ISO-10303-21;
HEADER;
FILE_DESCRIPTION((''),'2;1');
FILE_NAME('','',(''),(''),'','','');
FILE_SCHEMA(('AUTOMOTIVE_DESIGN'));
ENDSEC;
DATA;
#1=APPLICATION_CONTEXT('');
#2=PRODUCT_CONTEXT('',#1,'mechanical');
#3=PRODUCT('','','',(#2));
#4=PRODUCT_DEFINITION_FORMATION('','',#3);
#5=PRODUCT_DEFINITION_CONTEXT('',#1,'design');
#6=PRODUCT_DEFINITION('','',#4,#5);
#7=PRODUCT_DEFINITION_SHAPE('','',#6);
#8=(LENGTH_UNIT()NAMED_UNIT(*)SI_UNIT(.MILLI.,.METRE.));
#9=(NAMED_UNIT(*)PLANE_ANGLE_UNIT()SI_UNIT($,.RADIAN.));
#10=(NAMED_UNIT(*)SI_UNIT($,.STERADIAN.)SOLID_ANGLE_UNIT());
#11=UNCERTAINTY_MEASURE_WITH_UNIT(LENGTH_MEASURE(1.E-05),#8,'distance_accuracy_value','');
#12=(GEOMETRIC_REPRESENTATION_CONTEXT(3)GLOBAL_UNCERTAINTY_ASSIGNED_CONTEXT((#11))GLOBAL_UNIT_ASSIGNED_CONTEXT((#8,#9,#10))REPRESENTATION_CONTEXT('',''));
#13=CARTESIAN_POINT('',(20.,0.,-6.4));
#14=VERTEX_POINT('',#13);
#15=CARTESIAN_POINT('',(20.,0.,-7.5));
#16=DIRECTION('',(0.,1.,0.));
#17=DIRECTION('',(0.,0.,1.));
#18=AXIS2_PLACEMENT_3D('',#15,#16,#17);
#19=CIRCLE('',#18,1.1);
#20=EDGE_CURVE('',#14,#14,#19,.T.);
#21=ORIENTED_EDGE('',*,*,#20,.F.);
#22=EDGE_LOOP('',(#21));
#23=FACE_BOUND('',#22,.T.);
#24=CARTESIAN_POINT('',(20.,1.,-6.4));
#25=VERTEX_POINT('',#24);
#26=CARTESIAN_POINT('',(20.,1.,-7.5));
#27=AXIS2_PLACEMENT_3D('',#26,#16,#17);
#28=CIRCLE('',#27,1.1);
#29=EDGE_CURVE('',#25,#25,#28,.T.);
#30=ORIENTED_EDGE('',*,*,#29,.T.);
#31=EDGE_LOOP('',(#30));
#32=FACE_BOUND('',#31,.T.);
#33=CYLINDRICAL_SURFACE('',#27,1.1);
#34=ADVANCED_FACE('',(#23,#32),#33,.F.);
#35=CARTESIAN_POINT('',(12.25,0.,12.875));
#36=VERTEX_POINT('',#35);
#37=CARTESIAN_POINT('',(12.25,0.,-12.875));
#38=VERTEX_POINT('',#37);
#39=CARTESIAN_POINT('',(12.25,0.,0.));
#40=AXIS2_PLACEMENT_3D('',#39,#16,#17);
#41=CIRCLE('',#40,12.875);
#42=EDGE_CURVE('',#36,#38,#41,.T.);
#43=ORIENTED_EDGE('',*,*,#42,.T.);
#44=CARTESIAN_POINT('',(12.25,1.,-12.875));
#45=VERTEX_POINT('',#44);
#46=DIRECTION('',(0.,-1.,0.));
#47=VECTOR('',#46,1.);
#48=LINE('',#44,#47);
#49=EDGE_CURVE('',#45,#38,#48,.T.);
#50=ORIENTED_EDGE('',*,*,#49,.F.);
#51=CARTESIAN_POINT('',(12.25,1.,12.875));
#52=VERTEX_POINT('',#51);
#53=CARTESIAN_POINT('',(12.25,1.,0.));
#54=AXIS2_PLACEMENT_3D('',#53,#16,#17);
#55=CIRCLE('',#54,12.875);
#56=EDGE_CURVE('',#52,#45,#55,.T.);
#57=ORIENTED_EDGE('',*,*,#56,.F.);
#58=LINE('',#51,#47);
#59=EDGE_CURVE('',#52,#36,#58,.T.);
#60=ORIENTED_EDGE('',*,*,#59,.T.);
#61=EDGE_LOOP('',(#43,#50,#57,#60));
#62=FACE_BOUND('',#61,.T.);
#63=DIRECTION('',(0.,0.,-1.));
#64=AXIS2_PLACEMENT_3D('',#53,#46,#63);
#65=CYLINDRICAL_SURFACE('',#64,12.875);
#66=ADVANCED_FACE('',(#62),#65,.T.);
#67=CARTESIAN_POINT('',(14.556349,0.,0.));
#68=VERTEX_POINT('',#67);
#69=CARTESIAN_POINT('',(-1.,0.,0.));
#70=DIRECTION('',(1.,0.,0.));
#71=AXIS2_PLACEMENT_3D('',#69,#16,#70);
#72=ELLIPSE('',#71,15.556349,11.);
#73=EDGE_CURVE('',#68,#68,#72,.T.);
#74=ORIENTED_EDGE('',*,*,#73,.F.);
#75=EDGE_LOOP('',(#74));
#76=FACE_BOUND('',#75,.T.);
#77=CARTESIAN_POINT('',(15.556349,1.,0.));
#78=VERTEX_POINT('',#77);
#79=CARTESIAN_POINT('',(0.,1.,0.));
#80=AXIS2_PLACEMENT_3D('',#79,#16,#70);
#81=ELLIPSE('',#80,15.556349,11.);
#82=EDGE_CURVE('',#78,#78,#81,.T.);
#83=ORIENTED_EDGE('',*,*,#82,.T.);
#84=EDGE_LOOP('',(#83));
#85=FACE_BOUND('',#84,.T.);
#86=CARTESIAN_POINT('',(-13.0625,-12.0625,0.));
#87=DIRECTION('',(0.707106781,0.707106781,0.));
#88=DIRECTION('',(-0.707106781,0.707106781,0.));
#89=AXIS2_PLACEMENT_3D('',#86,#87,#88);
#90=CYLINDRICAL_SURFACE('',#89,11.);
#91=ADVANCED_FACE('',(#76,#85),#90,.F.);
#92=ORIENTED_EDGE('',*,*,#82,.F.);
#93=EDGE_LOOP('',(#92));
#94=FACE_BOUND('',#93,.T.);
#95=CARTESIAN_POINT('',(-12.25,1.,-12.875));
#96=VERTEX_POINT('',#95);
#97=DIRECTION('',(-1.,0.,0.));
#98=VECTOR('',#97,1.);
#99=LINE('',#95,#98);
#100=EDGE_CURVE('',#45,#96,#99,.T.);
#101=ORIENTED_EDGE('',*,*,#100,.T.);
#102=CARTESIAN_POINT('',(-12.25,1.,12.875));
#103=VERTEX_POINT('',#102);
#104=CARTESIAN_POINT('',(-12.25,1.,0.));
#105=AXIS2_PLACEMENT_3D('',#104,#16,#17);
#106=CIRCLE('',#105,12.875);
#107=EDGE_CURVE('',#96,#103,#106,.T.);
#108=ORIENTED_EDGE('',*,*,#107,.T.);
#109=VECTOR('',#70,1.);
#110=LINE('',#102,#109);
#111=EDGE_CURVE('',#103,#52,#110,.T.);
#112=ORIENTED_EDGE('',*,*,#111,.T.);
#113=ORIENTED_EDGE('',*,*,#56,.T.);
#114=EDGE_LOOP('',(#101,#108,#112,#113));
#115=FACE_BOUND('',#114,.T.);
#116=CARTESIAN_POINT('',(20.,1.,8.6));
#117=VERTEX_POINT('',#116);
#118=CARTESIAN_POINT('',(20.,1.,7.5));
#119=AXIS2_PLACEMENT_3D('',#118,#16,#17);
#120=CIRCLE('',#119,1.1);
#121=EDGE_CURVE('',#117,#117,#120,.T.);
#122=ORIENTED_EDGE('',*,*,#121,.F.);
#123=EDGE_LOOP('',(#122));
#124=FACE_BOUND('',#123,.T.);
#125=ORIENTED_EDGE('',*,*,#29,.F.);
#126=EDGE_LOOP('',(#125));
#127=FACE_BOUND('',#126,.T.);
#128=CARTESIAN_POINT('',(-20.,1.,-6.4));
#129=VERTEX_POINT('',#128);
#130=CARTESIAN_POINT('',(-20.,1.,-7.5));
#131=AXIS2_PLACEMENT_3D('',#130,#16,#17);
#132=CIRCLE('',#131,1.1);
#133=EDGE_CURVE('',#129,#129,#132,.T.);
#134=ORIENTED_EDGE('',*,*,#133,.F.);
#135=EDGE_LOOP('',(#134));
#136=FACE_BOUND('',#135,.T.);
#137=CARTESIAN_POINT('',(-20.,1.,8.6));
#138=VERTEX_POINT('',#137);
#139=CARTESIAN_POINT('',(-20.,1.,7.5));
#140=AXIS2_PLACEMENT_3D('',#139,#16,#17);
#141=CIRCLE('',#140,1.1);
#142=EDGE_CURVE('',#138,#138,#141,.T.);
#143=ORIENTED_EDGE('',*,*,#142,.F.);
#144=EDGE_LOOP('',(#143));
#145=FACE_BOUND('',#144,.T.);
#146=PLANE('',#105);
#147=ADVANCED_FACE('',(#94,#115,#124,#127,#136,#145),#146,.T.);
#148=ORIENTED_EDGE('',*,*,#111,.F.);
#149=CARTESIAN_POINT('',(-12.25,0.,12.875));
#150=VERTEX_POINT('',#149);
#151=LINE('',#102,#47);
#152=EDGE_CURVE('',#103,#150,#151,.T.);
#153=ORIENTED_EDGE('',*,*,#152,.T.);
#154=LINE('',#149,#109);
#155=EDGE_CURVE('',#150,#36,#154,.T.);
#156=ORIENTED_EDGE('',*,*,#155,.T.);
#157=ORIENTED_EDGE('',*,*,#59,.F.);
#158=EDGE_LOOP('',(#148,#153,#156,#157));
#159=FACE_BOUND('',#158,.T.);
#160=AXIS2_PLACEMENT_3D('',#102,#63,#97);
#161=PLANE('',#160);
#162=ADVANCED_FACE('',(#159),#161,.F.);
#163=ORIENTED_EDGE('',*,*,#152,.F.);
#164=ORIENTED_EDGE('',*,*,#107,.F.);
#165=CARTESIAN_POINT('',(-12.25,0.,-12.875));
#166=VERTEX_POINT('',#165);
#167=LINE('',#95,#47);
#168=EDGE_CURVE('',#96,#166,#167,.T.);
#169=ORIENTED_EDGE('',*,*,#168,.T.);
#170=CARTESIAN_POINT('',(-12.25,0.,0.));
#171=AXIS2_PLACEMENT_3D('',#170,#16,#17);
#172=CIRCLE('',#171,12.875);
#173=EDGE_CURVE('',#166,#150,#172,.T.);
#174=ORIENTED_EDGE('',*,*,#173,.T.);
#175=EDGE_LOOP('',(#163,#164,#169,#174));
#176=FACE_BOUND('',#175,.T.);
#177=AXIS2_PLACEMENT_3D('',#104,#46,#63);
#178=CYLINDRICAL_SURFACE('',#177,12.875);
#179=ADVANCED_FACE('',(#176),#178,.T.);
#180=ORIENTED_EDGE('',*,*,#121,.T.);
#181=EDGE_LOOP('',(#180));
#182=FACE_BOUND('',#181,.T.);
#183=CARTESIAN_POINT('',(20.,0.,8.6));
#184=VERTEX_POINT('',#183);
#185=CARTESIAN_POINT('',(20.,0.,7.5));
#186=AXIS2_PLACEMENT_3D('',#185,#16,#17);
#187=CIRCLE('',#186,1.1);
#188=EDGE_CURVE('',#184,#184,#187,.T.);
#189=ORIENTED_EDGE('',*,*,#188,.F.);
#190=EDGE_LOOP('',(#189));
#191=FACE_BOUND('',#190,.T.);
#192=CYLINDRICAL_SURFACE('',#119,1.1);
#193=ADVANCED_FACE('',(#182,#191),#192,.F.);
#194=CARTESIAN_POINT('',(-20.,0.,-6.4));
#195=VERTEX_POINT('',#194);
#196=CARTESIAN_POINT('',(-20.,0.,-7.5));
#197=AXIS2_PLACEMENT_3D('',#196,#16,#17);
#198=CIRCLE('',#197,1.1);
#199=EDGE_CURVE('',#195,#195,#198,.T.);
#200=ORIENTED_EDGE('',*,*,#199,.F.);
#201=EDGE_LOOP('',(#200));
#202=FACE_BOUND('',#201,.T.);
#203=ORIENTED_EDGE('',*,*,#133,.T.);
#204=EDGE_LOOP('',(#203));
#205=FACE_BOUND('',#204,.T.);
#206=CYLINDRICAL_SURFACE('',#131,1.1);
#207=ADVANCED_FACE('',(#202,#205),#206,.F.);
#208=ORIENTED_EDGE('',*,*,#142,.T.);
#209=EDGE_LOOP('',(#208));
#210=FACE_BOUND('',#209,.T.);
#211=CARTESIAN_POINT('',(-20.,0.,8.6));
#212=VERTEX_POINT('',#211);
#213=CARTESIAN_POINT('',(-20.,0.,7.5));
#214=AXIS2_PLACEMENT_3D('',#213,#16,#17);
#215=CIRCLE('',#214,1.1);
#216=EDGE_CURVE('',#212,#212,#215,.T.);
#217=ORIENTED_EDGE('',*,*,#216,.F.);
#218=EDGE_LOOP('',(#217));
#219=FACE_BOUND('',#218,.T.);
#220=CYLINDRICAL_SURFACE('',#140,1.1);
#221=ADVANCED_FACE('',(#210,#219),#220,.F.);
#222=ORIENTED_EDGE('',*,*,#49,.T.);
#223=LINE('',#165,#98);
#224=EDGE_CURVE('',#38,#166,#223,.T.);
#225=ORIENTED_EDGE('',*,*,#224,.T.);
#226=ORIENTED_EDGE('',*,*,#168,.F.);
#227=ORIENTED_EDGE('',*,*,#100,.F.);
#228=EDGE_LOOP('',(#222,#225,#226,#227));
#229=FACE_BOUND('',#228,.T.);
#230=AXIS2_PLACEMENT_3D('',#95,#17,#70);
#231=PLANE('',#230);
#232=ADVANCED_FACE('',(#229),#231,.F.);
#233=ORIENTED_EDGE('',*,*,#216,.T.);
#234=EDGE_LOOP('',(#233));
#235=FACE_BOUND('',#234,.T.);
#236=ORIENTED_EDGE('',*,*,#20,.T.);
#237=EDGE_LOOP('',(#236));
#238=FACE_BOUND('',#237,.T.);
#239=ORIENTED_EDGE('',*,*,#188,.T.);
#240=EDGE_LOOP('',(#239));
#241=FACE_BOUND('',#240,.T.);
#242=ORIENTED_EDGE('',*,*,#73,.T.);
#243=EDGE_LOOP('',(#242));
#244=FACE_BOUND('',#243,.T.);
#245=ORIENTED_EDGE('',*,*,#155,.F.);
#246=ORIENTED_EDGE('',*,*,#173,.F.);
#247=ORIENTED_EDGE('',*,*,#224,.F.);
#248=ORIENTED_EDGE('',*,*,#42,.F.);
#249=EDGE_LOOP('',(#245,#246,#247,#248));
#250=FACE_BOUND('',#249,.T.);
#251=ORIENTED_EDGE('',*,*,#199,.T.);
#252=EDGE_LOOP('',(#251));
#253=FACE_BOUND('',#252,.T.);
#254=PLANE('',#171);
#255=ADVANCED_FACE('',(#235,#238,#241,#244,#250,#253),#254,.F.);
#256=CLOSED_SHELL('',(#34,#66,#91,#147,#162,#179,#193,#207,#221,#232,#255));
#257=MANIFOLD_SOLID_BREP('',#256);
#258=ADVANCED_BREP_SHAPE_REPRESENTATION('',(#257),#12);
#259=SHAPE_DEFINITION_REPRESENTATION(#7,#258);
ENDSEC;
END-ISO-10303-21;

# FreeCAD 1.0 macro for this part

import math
import FreeCAD as App
import Part
import Sketcher

V = App.Vector

doc = App.newDocument("Part")
params = doc.addObject("Spreadsheet::Sheet", "Params")
for row, (alias, value) in enumerate([
    ("sketch1_width", "24.5 mm"),
    ("pad1_length", "1 mm"),
    ("sketch2_diameter", "22 mm"),
    ("sketch3_diameter", "2.2 mm"),
    ("hole_diameter", "2.2 mm"),
    ("hole_depth", "1 mm"),
], start=1):
    params.set(f"A{row}", alias)
    params.set(f"B{row}", "=" + value)
    params.setAlias(f"B{row}", alias)

body = doc.addObject("PartDesign::Body", "Body")

# Sketch on XZ plane
sketch1 = body.newObject("Sketcher::SketchObject", "Sketch")
sketch1.AttachmentSupport = (doc.getObject("XZ_Plane"), [""])
sketch1.MapMode = "FlatFace"
sketch1.addGeometry([
    Part.LineSegment(V(12, -13, 0), V(-12, -13, 0)),
    Part.ArcOfCircle(Part.Circle(V(-12, 0, 0), V(0, 0, 1), 13), math.radians(90), math.radians(270)),
    Part.LineSegment(V(-12, 13, 0), V(12, 13, 0)),
    Part.ArcOfCircle(Part.Circle(V(12, 0, 0), V(0, 0, 1), 13), math.radians(-90), math.radians(90)),
], False)
sketch1.addConstraint([
    Sketcher.Constraint("Tangent", 0, 2, 1, 2),
    Sketcher.Constraint("Tangent", 1, 1, 2, 1),
    Sketcher.Constraint("Tangent", 2, 2, 3, 2),
    Sketcher.Constraint("Tangent", 3, 1, 0, 1),
    Sketcher.Constraint("Horizontal", 0),
    Sketcher.Constraint("Horizontal", 2),
    Sketcher.Constraint("Symmetric", 1, 3, 3, 3, -1, 1),
    Sketcher.Constraint("DistanceX", 0, 2, 0, 1, 24.5),
    Sketcher.Constraint("Radius", 1, 12.875),
])
sketch1.setExpression("Constraints[7]", "Params.sketch1_width")
pad1 = body.newObject("PartDesign::Pad", "Pad")
pad1.Profile = sketch1
pad1.setExpression("Length", "Params.pad1_length")
pad1.Reversed = True

# Sketch on an angled plane
sketch2 = body.newObject("Sketcher::SketchObject", "Sketch001")
sketch2.Placement = App.Placement(V(6.125, 6.125, 0), App.Rotation(V(0, 0, 1), V(0.707106781, -0.707106781, 0), V(0.707106781, 0.707106781, 0), "ZXY"))
sketch2.addGeometry(Part.Circle(V(0, -1, 0), V(0, 0, 1), 11), False)
sketch2.addConstraint([
    Sketcher.Constraint("PointOnObject", 0, 3, -2),
    Sketcher.Constraint("Diameter", 0, 22.0),
    Sketcher.Constraint("DistanceY", 0, 3, -1, 1, 0.707107),
])
sketch2.setExpression("Constraints[1]", "Params.sketch2_diameter")
pocket1 = body.newObject("PartDesign::Pocket", "Pocket")
pocket1.Profile = sketch2
pocket1.Type = "ThroughAll"
pocket1.Midplane = True

# Sketch on XZ plane
sketch3 = body.newObject("Sketcher::SketchObject", "Sketch002")
sketch3.AttachmentSupport = (doc.getObject("XZ_Plane"), [""])
sketch3.MapMode = "FlatFace"
sketch3.AttachmentOffset = App.Placement(V(0, 0, -1), App.Rotation())
sketch3.addGeometry([
    Part.Circle(V(-20, -7.5, 0), V(0, 0, 1), 1.1),
    Part.Circle(V(-20, 7.5, 0), V(0, 0, 1), 1.1),
    Part.Circle(V(20, 7.5, 0), V(0, 0, 1), 1.1),
    Part.Circle(V(20, -7.5, 0), V(0, 0, 1), 1.1),
], False)
sketch3.addConstraint([
    Sketcher.Constraint("Equal", 0, 1),
    Sketcher.Constraint("Equal", 1, 2),
    Sketcher.Constraint("Equal", 2, 3),
    Sketcher.Constraint("Symmetric", 0, 3, 2, 3, -1, 1),
    Sketcher.Constraint("Symmetric", 1, 3, 3, 3, -1, 1),
    Sketcher.Constraint("Symmetric", 1, 3, 2, 3, -2),
    Sketcher.Constraint("Diameter", 0, 2.2),
    Sketcher.Constraint("DistanceX", 0, 3, -1, 1, 20.0),
    Sketcher.Constraint("DistanceY", 0, 3, 1, 3, 15.0),
])
sketch3.setExpression("Constraints[6]", "Params.sketch3_diameter")
doc.recompute()
hole = body.newObject("PartDesign::Hole", "Hole")
hole.Profile = sketch3
hole.ThreadType = "None"
hole.setExpression("Diameter", "Params.hole_diameter")
hole.DepthType = "Dimension"
hole.setExpression("Depth", "Params.hole_depth")
hole.DrillPoint = "Flat"
hole.Reversed = True

doc.recompute()
